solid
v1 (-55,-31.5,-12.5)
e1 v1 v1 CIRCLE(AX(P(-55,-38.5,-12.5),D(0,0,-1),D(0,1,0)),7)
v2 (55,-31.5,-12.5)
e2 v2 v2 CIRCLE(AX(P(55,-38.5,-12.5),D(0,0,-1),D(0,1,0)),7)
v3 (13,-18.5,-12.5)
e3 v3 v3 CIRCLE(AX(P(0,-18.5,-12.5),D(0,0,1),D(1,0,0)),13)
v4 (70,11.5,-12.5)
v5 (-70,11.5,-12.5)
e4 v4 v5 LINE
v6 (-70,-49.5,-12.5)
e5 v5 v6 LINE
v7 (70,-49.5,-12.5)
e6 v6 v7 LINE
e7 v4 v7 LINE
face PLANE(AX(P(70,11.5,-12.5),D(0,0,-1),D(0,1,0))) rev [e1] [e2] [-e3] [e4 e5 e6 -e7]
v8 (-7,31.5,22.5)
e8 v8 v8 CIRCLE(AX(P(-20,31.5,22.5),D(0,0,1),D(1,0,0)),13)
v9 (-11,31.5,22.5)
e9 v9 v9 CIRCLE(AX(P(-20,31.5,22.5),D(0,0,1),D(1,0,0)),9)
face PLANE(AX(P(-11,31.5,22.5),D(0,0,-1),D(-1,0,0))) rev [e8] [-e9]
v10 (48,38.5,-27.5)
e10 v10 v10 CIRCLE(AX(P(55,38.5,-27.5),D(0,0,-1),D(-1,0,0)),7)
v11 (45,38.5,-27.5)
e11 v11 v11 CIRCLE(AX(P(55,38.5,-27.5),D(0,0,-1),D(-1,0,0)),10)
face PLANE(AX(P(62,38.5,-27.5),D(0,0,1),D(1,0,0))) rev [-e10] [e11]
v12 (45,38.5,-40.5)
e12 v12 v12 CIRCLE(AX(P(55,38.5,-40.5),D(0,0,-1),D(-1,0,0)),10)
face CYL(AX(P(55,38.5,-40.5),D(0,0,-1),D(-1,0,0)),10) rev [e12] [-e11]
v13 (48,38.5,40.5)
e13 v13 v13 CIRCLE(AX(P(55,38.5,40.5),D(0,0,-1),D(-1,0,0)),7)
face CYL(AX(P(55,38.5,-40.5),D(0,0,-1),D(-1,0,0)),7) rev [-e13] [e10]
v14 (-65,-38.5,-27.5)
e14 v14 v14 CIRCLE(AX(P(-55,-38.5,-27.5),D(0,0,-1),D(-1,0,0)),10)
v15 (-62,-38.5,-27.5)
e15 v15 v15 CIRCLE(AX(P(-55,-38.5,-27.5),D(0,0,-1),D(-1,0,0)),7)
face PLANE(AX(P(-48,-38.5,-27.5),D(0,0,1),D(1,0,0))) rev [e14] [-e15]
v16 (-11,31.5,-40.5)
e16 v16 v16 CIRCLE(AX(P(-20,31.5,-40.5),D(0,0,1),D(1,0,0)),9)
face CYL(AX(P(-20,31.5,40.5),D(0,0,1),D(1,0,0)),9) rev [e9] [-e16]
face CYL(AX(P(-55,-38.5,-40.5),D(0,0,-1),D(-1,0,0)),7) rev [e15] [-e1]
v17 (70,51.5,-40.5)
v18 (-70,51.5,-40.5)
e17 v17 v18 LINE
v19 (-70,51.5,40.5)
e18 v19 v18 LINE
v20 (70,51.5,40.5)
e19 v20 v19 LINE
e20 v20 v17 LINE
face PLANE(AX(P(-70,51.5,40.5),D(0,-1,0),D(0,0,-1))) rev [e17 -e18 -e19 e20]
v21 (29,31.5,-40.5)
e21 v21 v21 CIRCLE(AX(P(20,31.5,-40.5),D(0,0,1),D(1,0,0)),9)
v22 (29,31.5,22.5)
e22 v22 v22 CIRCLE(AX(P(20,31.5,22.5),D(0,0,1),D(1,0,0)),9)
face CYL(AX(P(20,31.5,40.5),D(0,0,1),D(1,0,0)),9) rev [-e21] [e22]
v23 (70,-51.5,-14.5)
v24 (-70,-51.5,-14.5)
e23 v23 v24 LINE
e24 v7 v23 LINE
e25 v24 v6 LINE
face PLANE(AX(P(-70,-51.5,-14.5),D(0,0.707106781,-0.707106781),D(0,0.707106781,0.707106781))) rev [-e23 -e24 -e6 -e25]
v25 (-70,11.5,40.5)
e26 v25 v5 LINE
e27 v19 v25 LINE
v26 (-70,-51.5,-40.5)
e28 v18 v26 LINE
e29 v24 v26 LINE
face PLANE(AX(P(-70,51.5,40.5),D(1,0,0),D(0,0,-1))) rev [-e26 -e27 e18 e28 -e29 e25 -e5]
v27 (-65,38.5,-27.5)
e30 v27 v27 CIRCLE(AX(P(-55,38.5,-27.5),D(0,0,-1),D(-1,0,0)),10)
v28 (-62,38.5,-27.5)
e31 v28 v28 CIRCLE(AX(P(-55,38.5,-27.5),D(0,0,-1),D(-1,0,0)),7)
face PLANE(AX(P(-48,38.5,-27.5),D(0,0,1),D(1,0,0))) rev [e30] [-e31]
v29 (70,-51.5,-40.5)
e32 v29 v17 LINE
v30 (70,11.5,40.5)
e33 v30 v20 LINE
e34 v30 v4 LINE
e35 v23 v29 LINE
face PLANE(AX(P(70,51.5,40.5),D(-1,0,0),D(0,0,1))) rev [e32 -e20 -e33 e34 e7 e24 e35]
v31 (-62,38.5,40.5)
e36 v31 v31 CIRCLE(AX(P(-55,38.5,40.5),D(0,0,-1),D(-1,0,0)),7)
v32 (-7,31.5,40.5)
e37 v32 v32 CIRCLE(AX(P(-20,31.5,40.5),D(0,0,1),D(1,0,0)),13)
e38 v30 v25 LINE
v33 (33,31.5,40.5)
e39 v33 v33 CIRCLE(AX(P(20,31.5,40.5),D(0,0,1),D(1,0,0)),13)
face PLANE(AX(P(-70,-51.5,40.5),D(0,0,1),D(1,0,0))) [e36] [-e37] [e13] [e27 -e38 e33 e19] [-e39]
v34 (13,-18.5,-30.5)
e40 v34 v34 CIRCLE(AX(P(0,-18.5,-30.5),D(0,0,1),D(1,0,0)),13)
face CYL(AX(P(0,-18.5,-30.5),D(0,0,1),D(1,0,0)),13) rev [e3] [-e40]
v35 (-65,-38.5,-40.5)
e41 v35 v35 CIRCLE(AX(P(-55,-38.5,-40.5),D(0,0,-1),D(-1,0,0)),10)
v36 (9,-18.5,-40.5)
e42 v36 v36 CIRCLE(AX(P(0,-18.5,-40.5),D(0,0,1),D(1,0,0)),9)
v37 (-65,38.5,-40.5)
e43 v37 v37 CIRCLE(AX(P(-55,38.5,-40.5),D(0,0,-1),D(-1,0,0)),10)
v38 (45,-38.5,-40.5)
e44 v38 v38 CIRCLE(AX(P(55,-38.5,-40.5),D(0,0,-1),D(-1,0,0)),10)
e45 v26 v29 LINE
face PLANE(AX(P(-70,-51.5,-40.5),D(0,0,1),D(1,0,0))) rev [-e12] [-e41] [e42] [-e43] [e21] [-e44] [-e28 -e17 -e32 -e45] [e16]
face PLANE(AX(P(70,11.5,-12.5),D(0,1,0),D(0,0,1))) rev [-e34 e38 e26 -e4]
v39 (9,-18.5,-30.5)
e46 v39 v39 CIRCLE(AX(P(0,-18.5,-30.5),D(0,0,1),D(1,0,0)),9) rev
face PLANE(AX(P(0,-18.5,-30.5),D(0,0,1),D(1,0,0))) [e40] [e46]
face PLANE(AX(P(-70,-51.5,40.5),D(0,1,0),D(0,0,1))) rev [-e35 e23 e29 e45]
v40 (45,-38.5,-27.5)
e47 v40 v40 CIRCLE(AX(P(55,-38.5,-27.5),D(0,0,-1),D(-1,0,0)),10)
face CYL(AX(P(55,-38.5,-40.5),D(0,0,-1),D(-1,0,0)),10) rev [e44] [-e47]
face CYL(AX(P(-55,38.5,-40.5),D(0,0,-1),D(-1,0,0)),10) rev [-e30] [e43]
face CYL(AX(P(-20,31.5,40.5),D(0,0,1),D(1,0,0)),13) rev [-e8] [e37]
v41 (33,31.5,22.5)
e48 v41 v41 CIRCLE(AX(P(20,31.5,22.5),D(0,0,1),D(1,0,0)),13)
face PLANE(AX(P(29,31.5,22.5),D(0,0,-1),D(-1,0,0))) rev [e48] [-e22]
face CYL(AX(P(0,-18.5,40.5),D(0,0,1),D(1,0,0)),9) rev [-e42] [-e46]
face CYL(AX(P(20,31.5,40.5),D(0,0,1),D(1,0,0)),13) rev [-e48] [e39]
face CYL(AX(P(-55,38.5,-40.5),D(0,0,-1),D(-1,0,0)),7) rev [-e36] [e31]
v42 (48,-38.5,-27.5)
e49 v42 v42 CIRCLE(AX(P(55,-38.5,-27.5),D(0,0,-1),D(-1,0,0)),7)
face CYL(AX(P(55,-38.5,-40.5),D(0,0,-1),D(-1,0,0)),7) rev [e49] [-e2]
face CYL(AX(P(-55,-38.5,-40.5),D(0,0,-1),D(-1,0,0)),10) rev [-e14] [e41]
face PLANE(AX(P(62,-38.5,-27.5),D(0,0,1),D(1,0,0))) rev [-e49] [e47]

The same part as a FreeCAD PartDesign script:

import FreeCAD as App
import Part
import Sketcher


def edges_at(feature, points):
    """Names of the edges that pass closest to the given points."""
    edges = feature.Shape.Edges
    near = lambda p: min(range(len(edges)), key=lambda i: edges[i].distToShape(Part.Vertex(*p))[0])
    return sorted({f"Edge{near(p) + 1}" for p in points})

doc = App.newDocument("Part")
params = doc.addObject("Spreadsheet::Sheet", "Params")
for row, (alias, value) in enumerate([
    ("sketch1_width", "140 mm"),
    ("sketch1_height", "103 mm"),
    ("pad1_length", "81 mm"),
    ("sketch2_width", "63 mm"),
    ("sketch2_height", "53 mm"),
    ("sketch3_diameter", "18 mm"),
    ("hole_diameter", "18 mm"),
    ("hole_depth", "90 mm"),
    ("hole_cbore_diameter", "26 mm"),
    ("hole_cbore_depth", "18 mm"),
    ("sketch4_diameter", "18 mm"),
    ("hole2_diameter", "18 mm"),
    ("hole2_depth", "90 mm"),
    ("hole2_cbore_diameter", "26 mm"),
    ("hole2_cbore_depth", "18 mm"),
    ("linearpattern_pitch", "40 mm"),
    ("sketch5_diameter", "14 mm"),
    ("hole3_diameter", "14 mm"),
    ("hole3_cbore_diameter", "20 mm"),
    ("hole3_cbore_depth", "13 mm"),
    ("sketch6_diameter", "26 mm"),
    ("pocket2_length", "18 mm"),
    ("chamfer_size", "2 mm"),
], start=1):
    params.set(f"A{row}", alias)
    params.set(f"B{row}", "=" + value)
    params.setAlias(f"B{row}", alias)

body = doc.addObject("PartDesign::Body", "Body")

# Sketch on XY plane
sketch1 = body.newObject("Sketcher::SketchObject", "Sketch")
sketch1.AttachmentSupport = (doc.getObject("XY_Plane"), [""])
sketch1.MapMode = "FlatFace"
sketch1.addGeometry(Part.LineSegment(App.Vector(-70, 52, 0), App.Vector(-70, -52, 0)), False)
sketch1.addGeometry(Part.LineSegment(App.Vector(-70, -52, 0), App.Vector(70, -52, 0)), False)
sketch1.addGeometry(Part.LineSegment(App.Vector(70, -52, 0), App.Vector(70, 52, 0)), False)
sketch1.addGeometry(Part.LineSegment(App.Vector(70, 52, 0), App.Vector(-70, 52, 0)), False)
sketch1.addConstraint(Sketcher.Constraint("Coincident", 0, 2, 1, 1))
sketch1.addConstraint(Sketcher.Constraint("Coincident", 1, 2, 2, 1))
sketch1.addConstraint(Sketcher.Constraint("Coincident", 2, 2, 3, 1))
sketch1.addConstraint(Sketcher.Constraint("Coincident", 3, 2, 0, 1))
sketch1.addConstraint(Sketcher.Constraint("Vertical", 0))
sketch1.addConstraint(Sketcher.Constraint("Horizontal", 1))
sketch1.addConstraint(Sketcher.Constraint("Vertical", 2))
sketch1.addConstraint(Sketcher.Constraint("Horizontal", 3))
sketch1.addConstraint(Sketcher.Constraint("Symmetric", 0, 2, 2, 2, -1, 1))
sketch1.addConstraint(Sketcher.Constraint("DistanceX", 1, 1, 1, 2, 140.0))
sketch1.addConstraint(Sketcher.Constraint("DistanceY", 0, 2, 0, 1, 103.0))
sketch1.setExpression("Constraints[9]", "Params.sketch1_width")
sketch1.setExpression("Constraints[10]", "Params.sketch1_height")
pad1 = body.newObject("PartDesign::Pad", "Pad")
pad1.Profile = sketch1
pad1.setExpression("Length", "Params.pad1_length")
pad1.Midplane = True

# Sketch on YZ plane
sketch2 = body.newObject("Sketcher::SketchObject", "Sketch001")
sketch2.AttachmentSupport = (doc.getObject("YZ_Plane"), [""])
sketch2.MapMode = "FlatFace"
sketch2.AttachmentOffset = App.Placement(App.Vector(0, 0, -70), App.Rotation())
sketch2.addGeometry(Part.LineSegment(App.Vector(12, -12, 0), App.Vector(-52, -12, 0)), False)
sketch2.addGeometry(Part.LineSegment(App.Vector(-52, -12, 0), App.Vector(-52, 40, 0)), False)
sketch2.addGeometry(Part.LineSegment(App.Vector(-52, 40, 0), App.Vector(12, 40, 0)), False)
sketch2.addGeometry(Part.LineSegment(App.Vector(12, 40, 0), App.Vector(12, -12, 0)), False)
sketch2.addConstraint(Sketcher.Constraint("Coincident", 0, 2, 1, 1))
sketch2.addConstraint(Sketcher.Constraint("Coincident", 1, 2, 2, 1))
sketch2.addConstraint(Sketcher.Constraint("Coincident", 2, 2, 3, 1))
sketch2.addConstraint(Sketcher.Constraint("Coincident", 3, 2, 0, 1))
sketch2.addConstraint(Sketcher.Constraint("Horizontal", 0))
sketch2.addConstraint(Sketcher.Constraint("Vertical", 1))
sketch2.addConstraint(Sketcher.Constraint("Horizontal", 2))
sketch2.addConstraint(Sketcher.Constraint("Vertical", 3))
sketch2.addConstraint(Sketcher.Constraint("DistanceX", 0, 2, 0, 1, 63.0))
sketch2.addConstraint(Sketcher.Constraint("DistanceY", 1, 1, 1, 2, 53.0))
sketch2.addConstraint(Sketcher.Constraint("DistanceX", 0, 2, -1, 1, 51.5))
sketch2.addConstraint(Sketcher.Constraint("DistanceY", 0, 2, -1, 1, 12.5))
sketch2.setExpression("Constraints[8]", "Params.sketch2_width")
sketch2.setExpression("Constraints[9]", "Params.sketch2_height")
pocket1 = body.newObject("PartDesign::Pocket", "Pocket")
pocket1.Profile = sketch2
pocket1.Type = "ThroughAll"
pocket1.Reversed = True

# Sketch on XY plane
sketch3 = body.newObject("Sketcher::SketchObject", "Sketch002")
sketch3.AttachmentSupport = (doc.getObject("XY_Plane"), [""])
sketch3.MapMode = "FlatFace"
sketch3.AttachmentOffset = App.Placement(App.Vector(0, 0, 40.5), App.Rotation())
sketch3.addGeometry(Part.Circle(App.Vector(0, -18, 0), App.Vector(0, 0, 1), 9), False)
sketch3.addConstraint(Sketcher.Constraint("PointOnObject", 0, 3, -2))
sketch3.addConstraint(Sketcher.Constraint("Diameter", 0, 18.0))
sketch3.addConstraint(Sketcher.Constraint("DistanceY", 0, 3, -1, 1, 18.5))
sketch3.setExpression("Constraints[1]", "Params.sketch3_diameter")
doc.recompute()
hole = body.newObject("PartDesign::Hole", "Hole")
hole.Profile = sketch3
hole.ThreadType = "None"
hole.setExpression("Diameter", "Params.hole_diameter")
hole.DepthType = "Dimension"
hole.setExpression("Depth", "Params.hole_depth")
hole.DrillPoint = "Flat"
hole.HoleCutType = "Counterbore"
hole.setExpression("HoleCutDiameter", "Params.hole_cbore_diameter")
hole.setExpression("HoleCutDepth", "Params.hole_cbore_depth")

# Sketch on XY plane
sketch4 = body.newObject("Sketcher::SketchObject", "Sketch003")
sketch4.AttachmentSupport = (doc.getObject("XY_Plane"), [""])
sketch4.MapMode = "FlatFace"
sketch4.AttachmentOffset = App.Placement(App.Vector(0, 0, 40.5), App.Rotation())
sketch4.addGeometry(Part.Circle(App.Vector(20, 32, 0), App.Vector(0, 0, 1), 9), False)
sketch4.addConstraint(Sketcher.Constraint("Diameter", 0, 18.0))
sketch4.addConstraint(Sketcher.Constraint("DistanceX", -1, 1, 0, 3, 20.0))
sketch4.addConstraint(Sketcher.Constraint("DistanceY", -1, 1, 0, 3, 31.5))
sketch4.setExpression("Constraints[0]", "Params.sketch4_diameter")
doc.recompute()
hole2 = body.newObject("PartDesign::Hole", "Hole001")
hole2.Profile = sketch4
hole2.ThreadType = "None"
hole2.setExpression("Diameter", "Params.hole2_diameter")
hole2.DepthType = "Dimension"
hole2.setExpression("Depth", "Params.hole2_depth")
hole2.DrillPoint = "Flat"
hole2.HoleCutType = "Counterbore"
hole2.setExpression("HoleCutDiameter", "Params.hole2_cbore_diameter")
hole2.setExpression("HoleCutDepth", "Params.hole2_cbore_depth")
doc.recompute()

linearpattern = body.newObject("PartDesign::LinearPattern", "LinearPattern")
linearpattern.Originals = [hole2]
linearpattern.Direction = (doc.getObject("X_Axis"), [""])
linearpattern.Mode = "offset"
linearpattern.setExpression("Offset", "Params.linearpattern_pitch")
linearpattern.Occurrences = 2
linearpattern.Reversed = True
body.Tip = linearpattern

# Sketch on XY plane
sketch5 = body.newObject("Sketcher::SketchObject", "Sketch004")
sketch5.AttachmentSupport = (doc.getObject("XY_Plane"), [""])
sketch5.MapMode = "FlatFace"
sketch5.AttachmentOffset = App.Placement(App.Vector(0, 0, -40.5), App.Rotation())
sketch5.addGeometry(Part.Circle(App.Vector(55, -38, 0), App.Vector(0, 0, 1), 7), False)
sketch5.addGeometry(Part.Circle(App.Vector(55, 38, 0), App.Vector(0, 0, 1), 7), False)
sketch5.addGeometry(Part.Circle(App.Vector(-55, 38, 0), App.Vector(0, 0, 1), 7), False)
sketch5.addGeometry(Part.Circle(App.Vector(-55, -38, 0), App.Vector(0, 0, 1), 7), False)
sketch5.addConstraint(Sketcher.Constraint("Equal", 0, 1))
sketch5.addConstraint(Sketcher.Constraint("Equal", 1, 2))
sketch5.addConstraint(Sketcher.Constraint("Equal", 2, 3))
sketch5.addConstraint(Sketcher.Constraint("Symmetric", 0, 3, 2, 3, -1, 1))
sketch5.addConstraint(Sketcher.Constraint("Symmetric", 1, 3, 3, 3, -1, 1))
sketch5.addConstraint(Sketcher.Constraint("Symmetric", 1, 3, 2, 3, -2))
sketch5.addConstraint(Sketcher.Constraint("Diameter", 0, 14.0))
sketch5.addConstraint(Sketcher.Constraint("DistanceX", -1, 1, 0, 3, 55.0))
sketch5.addConstraint(Sketcher.Constraint("DistanceY", 0, 3, 1, 3, 77.0))
sketch5.setExpression("Constraints[6]", "Params.sketch5_diameter")
doc.recompute()
hole3 = body.newObject("PartDesign::Hole", "Hole002")
hole3.Profile = sketch5
hole3.ThreadType = "None"
hole3.setExpression("Diameter", "Params.hole3_diameter")
hole3.DepthType = "ThroughAll"
hole3.HoleCutType = "Counterbore"
hole3.setExpression("HoleCutDiameter", "Params.hole3_cbore_diameter")
hole3.setExpression("HoleCutDepth", "Params.hole3_cbore_depth")
hole3.Reversed = True

# Sketch on XY plane
sketch6 = body.newObject("Sketcher::SketchObject", "Sketch005")
sketch6.AttachmentSupport = (doc.getObject("XY_Plane"), [""])
sketch6.MapMode = "FlatFace"
sketch6.AttachmentOffset = App.Placement(App.Vector(0, 0, -12.5), App.Rotation())
sketch6.addGeometry(Part.Circle(App.Vector(0, -18, 0), App.Vector(0, 0, 1), 13), False)
sketch6.addConstraint(Sketcher.Constraint("PointOnObject", 0, 3, -2))
sketch6.addConstraint(Sketcher.Constraint("Diameter", 0, 26.0))
sketch6.addConstraint(Sketcher.Constraint("DistanceY", 0, 3, -1, 1, 18.5))
sketch6.setExpression("Constraints[1]", "Params.sketch6_diameter")
pocket2 = body.newObject("PartDesign::Pocket", "Pocket001")
pocket2.Profile = sketch6
pocket2.setExpression("Length", "Params.pocket2_length")
doc.recompute()

chamfer = body.newObject("PartDesign::Chamfer", "Chamfer")
chamfer.Base = (pocket2, edges_at(pocket2, [(0, -51.5, -12.5)]))
chamfer.setExpression("Size", "Params.chamfer_size")

doc.recompute()
